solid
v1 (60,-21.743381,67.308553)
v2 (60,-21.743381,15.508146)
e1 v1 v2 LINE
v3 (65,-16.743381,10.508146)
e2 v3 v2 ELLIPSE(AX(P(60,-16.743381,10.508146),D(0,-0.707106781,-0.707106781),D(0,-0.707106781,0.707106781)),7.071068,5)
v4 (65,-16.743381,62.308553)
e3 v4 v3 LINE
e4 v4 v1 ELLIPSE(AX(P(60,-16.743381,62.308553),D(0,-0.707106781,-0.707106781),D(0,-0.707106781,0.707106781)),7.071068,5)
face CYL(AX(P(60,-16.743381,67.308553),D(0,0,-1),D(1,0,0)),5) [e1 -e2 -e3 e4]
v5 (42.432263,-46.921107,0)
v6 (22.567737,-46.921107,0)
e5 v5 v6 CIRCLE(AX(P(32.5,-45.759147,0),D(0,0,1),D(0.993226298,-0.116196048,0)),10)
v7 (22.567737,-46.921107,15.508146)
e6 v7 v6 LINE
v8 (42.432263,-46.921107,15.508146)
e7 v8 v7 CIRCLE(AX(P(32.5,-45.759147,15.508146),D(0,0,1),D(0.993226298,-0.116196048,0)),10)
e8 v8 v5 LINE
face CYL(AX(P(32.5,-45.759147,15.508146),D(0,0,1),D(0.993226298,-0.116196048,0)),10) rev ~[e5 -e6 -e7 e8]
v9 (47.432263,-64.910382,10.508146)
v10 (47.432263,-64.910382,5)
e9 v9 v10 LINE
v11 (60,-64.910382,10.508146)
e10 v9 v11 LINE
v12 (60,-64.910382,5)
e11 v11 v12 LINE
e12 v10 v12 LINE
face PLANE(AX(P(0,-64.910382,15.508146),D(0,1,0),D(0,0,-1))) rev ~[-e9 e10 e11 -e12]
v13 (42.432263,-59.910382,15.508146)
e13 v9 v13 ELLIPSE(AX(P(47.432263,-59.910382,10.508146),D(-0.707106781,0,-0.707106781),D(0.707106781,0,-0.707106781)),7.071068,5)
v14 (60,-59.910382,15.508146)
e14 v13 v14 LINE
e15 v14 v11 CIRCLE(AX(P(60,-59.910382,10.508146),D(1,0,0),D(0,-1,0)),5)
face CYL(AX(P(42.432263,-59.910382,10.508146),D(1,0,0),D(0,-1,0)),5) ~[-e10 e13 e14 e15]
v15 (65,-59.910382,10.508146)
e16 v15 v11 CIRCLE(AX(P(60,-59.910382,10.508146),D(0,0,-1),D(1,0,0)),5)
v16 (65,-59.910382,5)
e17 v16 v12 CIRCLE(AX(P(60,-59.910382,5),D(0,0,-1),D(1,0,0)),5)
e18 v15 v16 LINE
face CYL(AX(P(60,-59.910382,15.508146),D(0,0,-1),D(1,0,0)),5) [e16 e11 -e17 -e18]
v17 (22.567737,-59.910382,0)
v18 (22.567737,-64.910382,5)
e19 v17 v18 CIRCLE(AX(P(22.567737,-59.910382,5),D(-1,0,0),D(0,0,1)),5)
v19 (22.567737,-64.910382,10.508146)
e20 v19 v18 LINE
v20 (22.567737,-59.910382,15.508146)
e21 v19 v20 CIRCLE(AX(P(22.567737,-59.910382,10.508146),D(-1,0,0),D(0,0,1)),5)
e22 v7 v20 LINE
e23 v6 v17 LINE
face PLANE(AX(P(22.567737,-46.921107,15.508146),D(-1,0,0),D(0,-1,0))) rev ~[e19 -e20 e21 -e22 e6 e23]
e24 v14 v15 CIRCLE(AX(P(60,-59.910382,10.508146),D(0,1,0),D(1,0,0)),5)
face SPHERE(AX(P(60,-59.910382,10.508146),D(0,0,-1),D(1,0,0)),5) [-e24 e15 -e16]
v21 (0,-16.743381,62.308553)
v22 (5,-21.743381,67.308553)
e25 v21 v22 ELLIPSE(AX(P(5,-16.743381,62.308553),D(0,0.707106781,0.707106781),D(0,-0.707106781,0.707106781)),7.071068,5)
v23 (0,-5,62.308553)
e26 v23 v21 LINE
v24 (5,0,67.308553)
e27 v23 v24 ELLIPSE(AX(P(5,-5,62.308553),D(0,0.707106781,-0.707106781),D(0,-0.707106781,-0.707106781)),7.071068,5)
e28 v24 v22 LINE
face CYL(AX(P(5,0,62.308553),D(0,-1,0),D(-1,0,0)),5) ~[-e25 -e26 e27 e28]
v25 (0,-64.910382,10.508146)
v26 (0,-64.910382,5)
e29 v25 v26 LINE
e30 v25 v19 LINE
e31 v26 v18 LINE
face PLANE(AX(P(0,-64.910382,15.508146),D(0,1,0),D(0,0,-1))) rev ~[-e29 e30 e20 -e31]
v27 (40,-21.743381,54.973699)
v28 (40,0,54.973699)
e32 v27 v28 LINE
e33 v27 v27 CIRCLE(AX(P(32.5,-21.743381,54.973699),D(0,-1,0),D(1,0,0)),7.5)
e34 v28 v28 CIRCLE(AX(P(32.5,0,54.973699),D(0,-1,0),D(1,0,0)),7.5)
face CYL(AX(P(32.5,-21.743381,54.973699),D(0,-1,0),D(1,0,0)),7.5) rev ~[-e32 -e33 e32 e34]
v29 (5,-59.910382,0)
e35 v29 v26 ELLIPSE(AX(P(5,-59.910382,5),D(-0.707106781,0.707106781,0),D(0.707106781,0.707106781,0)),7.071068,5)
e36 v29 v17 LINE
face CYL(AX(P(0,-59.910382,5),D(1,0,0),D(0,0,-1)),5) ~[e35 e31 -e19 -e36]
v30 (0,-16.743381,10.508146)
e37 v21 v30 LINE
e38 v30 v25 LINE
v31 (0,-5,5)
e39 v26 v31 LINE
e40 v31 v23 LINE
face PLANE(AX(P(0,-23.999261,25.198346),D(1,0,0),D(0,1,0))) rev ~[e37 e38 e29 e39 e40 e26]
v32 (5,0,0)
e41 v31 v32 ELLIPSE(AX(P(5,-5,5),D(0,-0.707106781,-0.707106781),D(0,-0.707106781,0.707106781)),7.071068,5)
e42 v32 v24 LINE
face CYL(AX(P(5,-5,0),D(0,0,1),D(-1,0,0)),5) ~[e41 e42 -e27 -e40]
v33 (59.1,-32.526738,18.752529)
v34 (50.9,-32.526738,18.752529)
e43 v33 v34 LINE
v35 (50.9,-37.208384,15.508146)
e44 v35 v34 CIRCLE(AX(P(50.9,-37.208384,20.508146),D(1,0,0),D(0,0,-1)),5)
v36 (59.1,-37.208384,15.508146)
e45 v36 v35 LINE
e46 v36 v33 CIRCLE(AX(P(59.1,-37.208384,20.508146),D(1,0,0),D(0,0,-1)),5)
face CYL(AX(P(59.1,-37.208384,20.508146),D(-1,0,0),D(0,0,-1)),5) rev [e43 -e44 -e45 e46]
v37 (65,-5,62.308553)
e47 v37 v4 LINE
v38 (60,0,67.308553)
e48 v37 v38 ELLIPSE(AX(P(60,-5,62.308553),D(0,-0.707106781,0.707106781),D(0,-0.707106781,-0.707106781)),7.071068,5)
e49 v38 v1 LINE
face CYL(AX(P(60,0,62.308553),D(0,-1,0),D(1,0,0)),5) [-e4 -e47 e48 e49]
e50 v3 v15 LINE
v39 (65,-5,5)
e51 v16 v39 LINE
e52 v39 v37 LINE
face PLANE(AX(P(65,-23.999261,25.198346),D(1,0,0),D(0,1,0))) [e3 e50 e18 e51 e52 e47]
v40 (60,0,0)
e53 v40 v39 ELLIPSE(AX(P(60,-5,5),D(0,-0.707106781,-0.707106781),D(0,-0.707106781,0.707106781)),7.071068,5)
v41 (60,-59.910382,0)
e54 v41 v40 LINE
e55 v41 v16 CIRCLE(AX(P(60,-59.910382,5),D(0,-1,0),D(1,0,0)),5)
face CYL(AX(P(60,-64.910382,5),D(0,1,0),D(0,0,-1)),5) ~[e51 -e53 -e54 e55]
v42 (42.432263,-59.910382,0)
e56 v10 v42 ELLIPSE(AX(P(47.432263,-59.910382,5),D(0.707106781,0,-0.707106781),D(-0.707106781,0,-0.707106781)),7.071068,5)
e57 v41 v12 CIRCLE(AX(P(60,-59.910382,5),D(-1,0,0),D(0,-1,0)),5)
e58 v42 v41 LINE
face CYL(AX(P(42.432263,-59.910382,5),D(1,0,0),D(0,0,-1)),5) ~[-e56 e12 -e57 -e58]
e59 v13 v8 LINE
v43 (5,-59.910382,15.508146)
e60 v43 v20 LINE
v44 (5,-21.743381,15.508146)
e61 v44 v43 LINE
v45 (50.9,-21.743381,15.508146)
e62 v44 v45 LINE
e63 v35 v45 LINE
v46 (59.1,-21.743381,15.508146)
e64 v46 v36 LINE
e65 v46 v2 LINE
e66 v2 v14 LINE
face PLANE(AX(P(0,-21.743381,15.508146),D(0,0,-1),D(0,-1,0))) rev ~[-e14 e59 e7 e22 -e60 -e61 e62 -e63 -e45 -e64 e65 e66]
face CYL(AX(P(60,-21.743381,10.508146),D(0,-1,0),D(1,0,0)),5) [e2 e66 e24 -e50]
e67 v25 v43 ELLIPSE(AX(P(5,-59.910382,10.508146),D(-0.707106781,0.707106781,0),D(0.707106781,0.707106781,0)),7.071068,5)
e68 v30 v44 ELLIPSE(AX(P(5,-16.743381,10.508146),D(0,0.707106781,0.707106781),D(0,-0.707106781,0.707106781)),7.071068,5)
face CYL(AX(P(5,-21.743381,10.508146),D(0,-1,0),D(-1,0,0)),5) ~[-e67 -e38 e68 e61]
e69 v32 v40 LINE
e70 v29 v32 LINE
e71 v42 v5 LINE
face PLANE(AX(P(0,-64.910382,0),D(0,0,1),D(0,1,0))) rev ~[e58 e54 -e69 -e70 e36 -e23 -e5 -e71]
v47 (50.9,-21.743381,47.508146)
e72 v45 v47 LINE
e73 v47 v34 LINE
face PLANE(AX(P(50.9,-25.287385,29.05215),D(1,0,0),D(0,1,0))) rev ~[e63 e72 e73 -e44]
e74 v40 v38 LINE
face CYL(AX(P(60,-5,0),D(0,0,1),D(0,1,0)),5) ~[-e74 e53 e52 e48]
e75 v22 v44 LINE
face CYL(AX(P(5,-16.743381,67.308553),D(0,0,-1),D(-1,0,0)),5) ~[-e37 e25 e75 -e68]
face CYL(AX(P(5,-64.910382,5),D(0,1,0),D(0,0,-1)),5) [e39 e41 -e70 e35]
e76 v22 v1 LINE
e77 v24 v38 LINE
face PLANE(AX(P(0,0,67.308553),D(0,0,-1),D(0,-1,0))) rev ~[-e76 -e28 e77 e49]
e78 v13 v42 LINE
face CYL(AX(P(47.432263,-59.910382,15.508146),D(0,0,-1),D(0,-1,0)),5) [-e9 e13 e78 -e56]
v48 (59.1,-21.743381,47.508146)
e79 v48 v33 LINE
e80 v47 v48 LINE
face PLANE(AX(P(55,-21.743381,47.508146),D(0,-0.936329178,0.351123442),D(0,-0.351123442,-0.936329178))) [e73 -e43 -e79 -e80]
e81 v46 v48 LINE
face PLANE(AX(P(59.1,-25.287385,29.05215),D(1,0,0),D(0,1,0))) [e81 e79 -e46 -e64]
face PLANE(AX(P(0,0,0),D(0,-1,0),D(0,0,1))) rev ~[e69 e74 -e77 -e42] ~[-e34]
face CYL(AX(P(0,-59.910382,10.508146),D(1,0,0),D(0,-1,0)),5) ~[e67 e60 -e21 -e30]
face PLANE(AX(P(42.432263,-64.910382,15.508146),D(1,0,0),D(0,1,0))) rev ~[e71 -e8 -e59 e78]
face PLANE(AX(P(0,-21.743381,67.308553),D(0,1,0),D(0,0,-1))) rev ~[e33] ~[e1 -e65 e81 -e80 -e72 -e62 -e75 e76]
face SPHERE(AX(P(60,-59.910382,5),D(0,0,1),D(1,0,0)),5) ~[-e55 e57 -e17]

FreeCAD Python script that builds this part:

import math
import FreeCAD as App
import Part
import Sketcher
from FreeCAD import Vector
Q = App.Units.Quantity


def edges_at(feature, points):
    """Names of the edges that pass closest to the given points."""
    edges = feature.Shape.Edges
    near = lambda p: min(range(len(edges)), key=lambda i: edges[i].distToShape(Part.Vertex(*p))[0])
    return sorted({f"Edge{near(p) + 1}" for p in points})


def add_polygon(sketch, points):
    """Adds a closed chain of lines whose ends are joined by coincident constraints."""
    first, n = sketch.GeometryCount, len(points)
    for a, b in zip(points, points[1:] + points[:1]):
        sketch.addGeometry(Part.LineSegment(App.Vector(*a, 0), App.Vector(*b, 0)), False)
    for i in range(n):
        sketch.addConstraint(Sketcher.Constraint("Coincident", first + i, 2, first + (i + 1) % n, 1))

doc = App.newDocument("Part")
params = doc.addObject("Spreadsheet::Sheet", "Params")
for row, (alias, value) in enumerate([
    ("pad1_length", "65 mm"),
    ("sketch2_diameter", "15 mm"),
    ("pocket1_length", "25 mm"),
    ("sketch3_radius", "10 mm"),
    ("sketch4_width", "12 mm"),
    ("sketch4_height", "32 mm"),
    ("pad2_length", "8.2 mm"),
    ("fillet_radius", "5 mm"),
], start=1):
    params.set(f"A{row}", alias)
    params.set(f"B{row}", "=" + value)
    params.setAlias(f"B{row}", alias)

body = doc.addObject("PartDesign::Body", "Body")

# Sketch on YZ plane
sketch1 = body.newObject("Sketcher::SketchObject", "Sketch")
sketch1.AttachmentSupport = (doc.getObject("YZ_Plane"), [""])
sketch1.MapMode = "FlatFace"
add_polygon(sketch1, [(-65, 0), (0, 0), (0, 67), (-22, 67), (-22, 16), (-65, 16)])  # lines 0-5
sketch1.addConstraint(Sketcher.Constraint("Horizontal", 0))
sketch1.addConstraint(Sketcher.Constraint("Vertical", 1))
sketch1.addConstraint(Sketcher.Constraint("Horizontal", 2))
sketch1.addConstraint(Sketcher.Constraint("Vertical", 3))
sketch1.addConstraint(Sketcher.Constraint("Horizontal", 4))
sketch1.addConstraint(Sketcher.Constraint("Vertical", 5))
sketch1.addConstraint(Sketcher.Constraint("Coincident", 0, 2, -1, 1))
sketch1.addConstraint(Sketcher.Constraint("DistanceX", 4, 2, 4, 1, Q("43.167001 mm")))
sketch1.addConstraint(Sketcher.Constraint("DistanceX", 2, 2, 2, 1, Q("21.743381 mm")))
sketch1.addConstraint(Sketcher.Constraint("DistanceY", 1, 1, 1, 2, Q("67.308553 mm")))
sketch1.addConstraint(Sketcher.Constraint("DistanceY", 3, 2, 3, 1, Q("51.800407 mm")))
pad1 = body.newObject("PartDesign::Pad", "Pad")
pad1.Profile = sketch1
pad1.setExpression("Length", "Params.pad1_length")

# Sketch on XZ plane
sketch2 = body.newObject("Sketcher::SketchObject", "Sketch001")
sketch2.AttachmentSupport = (doc.getObject("XZ_Plane"), [""])
sketch2.MapMode = "FlatFace"
sketch2.AttachmentOffset = App.Placement(Vector(0, 0, 21.743381), App.Rotation())
sketch2.addGeometry(Part.Circle(Vector(32, 55, 0), Vector(0, 0, 1), 8), False)
sketch2.addConstraint(Sketcher.Constraint("Diameter", 0, Q("15 mm")))
sketch2.addConstraint(Sketcher.Constraint("DistanceX", -1, 1, 0, 3, Q("32.5 mm")))
sketch2.addConstraint(Sketcher.Constraint("DistanceY", -1, 1, 0, 3, Q("54.973699 mm")))
sketch2.setExpression("Constraints[0]", "Params.sketch2_diameter")
pocket1 = body.newObject("PartDesign::Pocket", "Pocket")
pocket1.Profile = sketch2
pocket1.setExpression("Length", "Params.pocket1_length")

# Sketch on XY plane
sketch3 = body.newObject("Sketcher::SketchObject", "Sketch002")
sketch3.AttachmentSupport = (doc.getObject("XY_Plane"), [""])
sketch3.MapMode = "FlatFace"
sketch3.AttachmentOffset = App.Placement(Vector(0, 0, 15.508146), App.Rotation())
sketch3.addGeometry(Part.LineSegment(Vector(42, -65, 0), Vector(42, -47, 0)), False)
sketch3.addGeometry(Part.ArcOfCircle(Part.Circle(Vector(32, -46, 0), Vector(0, 0, 1), 10), math.radians(-7), math.radians(187)), False)
sketch3.addGeometry(Part.LineSegment(Vector(23, -47, 0), Vector(23, -65, 0)), False)
sketch3.addGeometry(Part.LineSegment(Vector(23, -65, 0), Vector(42, -65, 0)), False)
sketch3.addConstraint(Sketcher.Constraint("Coincident", 0, 2, 1, 1))
sketch3.addConstraint(Sketcher.Constraint("Coincident", 1, 2, 2, 1))
sketch3.addConstraint(Sketcher.Constraint("Coincident", 2, 2, 3, 1))
sketch3.addConstraint(Sketcher.Constraint("Coincident", 3, 2, 0, 1))
sketch3.addConstraint(Sketcher.Constraint("Vertical", 0))
sketch3.addConstraint(Sketcher.Constraint("Vertical", 2))
sketch3.addConstraint(Sketcher.Constraint("Horizontal", 3))
sketch3.addConstraint(Sketcher.Constraint("Horizontal", 0, 2, 1, 2))
sketch3.addConstraint(Sketcher.Constraint("Radius", 1, Q("10 mm")))
sketch3.addConstraint(Sketcher.Constraint("DistanceX", -1, 1, 1, 3, Q("32.5 mm")))
sketch3.addConstraint(Sketcher.Constraint("DistanceX", 3, 1, 3, 2, Q("19.864526 mm")))
sketch3.addConstraint(Sketcher.Constraint("DistanceY", 0, 1, 0, 2, Q("17.989275 mm")))
sketch3.addConstraint(Sketcher.Constraint("DistanceY", 1, 3, -1, 1, Q("45.759147 mm")))
sketch3.setExpression("Constraints[8]", "Params.sketch3_radius")
pocket2 = body.newObject("PartDesign::Pocket", "Pocket001")
pocket2.Profile = sketch3
pocket2.Type = "ThroughAll"

# Sketch on YZ plane
sketch4 = body.newObject("Sketcher::SketchObject", "Sketch003")
sketch4.AttachmentSupport = (doc.getObject("YZ_Plane"), [""])
sketch4.MapMode = "FlatFace"
sketch4.AttachmentOffset = App.Placement(Vector(0, 0, 55), App.Rotation())
add_polygon(sketch4, [(-22, 16), (-22, 48), (-34, 16)])  # lines 0-2
sketch4.addConstraint(Sketcher.Constraint("Vertical", 0))
sketch4.addConstraint(Sketcher.Constraint("Horizontal", 2))
sketch4.addConstraint(Sketcher.Constraint("DistanceX", 2, 1, 2, 2, Q("12 mm")))
sketch4.addConstraint(Sketcher.Constraint("DistanceY", 0, 1, 0, 2, Q("32 mm")))
sketch4.addConstraint(Sketcher.Constraint("DistanceX", 0, 2, -1, 1, Q("21.743381 mm")))
sketch4.addConstraint(Sketcher.Constraint("DistanceY", -1, 1, 0, 2, Q("47.508146 mm")))
sketch4.setExpression("Constraints[5]", "Params.sketch4_width")
sketch4.setExpression("Constraints[6]", "Params.sketch4_height")
pad2 = body.newObject("PartDesign::Pad", "Pad001")
pad2.Profile = sketch4
pad2.setExpression("Length", "Params.pad2_length")
pad2.Midplane = True
doc.recompute()

fillet = body.newObject("PartDesign::Fillet", "Fillet")
fillet.Base = (pad2, edges_at(pad2, [
    (0, -10.872, 67.309),
    (65, -10.872, 67.309),
    (11.284, -64.91, 15.508),
    (0, -43.327, 15.508),
    (0, -21.743, 41.408),
    (0, 0, 33.654),
    (0, -32.455, 0),
    (11.284, -64.91, 0),
    (65, -64.91, 7.754),
    (65, -43.327, 15.508),
    (65, -21.743, 41.408),
    (65, 0, 33.654),
    (65, -32.455, 0),
    (42.432, -64.91, 7.754),
    (53.716, -64.91, 0),
    (53.716, -64.91, 15.508),
    (55, -33.743, 15.508),
]))
fillet.setExpression("Radius", "Params.fillet_radius")

doc.recompute()
